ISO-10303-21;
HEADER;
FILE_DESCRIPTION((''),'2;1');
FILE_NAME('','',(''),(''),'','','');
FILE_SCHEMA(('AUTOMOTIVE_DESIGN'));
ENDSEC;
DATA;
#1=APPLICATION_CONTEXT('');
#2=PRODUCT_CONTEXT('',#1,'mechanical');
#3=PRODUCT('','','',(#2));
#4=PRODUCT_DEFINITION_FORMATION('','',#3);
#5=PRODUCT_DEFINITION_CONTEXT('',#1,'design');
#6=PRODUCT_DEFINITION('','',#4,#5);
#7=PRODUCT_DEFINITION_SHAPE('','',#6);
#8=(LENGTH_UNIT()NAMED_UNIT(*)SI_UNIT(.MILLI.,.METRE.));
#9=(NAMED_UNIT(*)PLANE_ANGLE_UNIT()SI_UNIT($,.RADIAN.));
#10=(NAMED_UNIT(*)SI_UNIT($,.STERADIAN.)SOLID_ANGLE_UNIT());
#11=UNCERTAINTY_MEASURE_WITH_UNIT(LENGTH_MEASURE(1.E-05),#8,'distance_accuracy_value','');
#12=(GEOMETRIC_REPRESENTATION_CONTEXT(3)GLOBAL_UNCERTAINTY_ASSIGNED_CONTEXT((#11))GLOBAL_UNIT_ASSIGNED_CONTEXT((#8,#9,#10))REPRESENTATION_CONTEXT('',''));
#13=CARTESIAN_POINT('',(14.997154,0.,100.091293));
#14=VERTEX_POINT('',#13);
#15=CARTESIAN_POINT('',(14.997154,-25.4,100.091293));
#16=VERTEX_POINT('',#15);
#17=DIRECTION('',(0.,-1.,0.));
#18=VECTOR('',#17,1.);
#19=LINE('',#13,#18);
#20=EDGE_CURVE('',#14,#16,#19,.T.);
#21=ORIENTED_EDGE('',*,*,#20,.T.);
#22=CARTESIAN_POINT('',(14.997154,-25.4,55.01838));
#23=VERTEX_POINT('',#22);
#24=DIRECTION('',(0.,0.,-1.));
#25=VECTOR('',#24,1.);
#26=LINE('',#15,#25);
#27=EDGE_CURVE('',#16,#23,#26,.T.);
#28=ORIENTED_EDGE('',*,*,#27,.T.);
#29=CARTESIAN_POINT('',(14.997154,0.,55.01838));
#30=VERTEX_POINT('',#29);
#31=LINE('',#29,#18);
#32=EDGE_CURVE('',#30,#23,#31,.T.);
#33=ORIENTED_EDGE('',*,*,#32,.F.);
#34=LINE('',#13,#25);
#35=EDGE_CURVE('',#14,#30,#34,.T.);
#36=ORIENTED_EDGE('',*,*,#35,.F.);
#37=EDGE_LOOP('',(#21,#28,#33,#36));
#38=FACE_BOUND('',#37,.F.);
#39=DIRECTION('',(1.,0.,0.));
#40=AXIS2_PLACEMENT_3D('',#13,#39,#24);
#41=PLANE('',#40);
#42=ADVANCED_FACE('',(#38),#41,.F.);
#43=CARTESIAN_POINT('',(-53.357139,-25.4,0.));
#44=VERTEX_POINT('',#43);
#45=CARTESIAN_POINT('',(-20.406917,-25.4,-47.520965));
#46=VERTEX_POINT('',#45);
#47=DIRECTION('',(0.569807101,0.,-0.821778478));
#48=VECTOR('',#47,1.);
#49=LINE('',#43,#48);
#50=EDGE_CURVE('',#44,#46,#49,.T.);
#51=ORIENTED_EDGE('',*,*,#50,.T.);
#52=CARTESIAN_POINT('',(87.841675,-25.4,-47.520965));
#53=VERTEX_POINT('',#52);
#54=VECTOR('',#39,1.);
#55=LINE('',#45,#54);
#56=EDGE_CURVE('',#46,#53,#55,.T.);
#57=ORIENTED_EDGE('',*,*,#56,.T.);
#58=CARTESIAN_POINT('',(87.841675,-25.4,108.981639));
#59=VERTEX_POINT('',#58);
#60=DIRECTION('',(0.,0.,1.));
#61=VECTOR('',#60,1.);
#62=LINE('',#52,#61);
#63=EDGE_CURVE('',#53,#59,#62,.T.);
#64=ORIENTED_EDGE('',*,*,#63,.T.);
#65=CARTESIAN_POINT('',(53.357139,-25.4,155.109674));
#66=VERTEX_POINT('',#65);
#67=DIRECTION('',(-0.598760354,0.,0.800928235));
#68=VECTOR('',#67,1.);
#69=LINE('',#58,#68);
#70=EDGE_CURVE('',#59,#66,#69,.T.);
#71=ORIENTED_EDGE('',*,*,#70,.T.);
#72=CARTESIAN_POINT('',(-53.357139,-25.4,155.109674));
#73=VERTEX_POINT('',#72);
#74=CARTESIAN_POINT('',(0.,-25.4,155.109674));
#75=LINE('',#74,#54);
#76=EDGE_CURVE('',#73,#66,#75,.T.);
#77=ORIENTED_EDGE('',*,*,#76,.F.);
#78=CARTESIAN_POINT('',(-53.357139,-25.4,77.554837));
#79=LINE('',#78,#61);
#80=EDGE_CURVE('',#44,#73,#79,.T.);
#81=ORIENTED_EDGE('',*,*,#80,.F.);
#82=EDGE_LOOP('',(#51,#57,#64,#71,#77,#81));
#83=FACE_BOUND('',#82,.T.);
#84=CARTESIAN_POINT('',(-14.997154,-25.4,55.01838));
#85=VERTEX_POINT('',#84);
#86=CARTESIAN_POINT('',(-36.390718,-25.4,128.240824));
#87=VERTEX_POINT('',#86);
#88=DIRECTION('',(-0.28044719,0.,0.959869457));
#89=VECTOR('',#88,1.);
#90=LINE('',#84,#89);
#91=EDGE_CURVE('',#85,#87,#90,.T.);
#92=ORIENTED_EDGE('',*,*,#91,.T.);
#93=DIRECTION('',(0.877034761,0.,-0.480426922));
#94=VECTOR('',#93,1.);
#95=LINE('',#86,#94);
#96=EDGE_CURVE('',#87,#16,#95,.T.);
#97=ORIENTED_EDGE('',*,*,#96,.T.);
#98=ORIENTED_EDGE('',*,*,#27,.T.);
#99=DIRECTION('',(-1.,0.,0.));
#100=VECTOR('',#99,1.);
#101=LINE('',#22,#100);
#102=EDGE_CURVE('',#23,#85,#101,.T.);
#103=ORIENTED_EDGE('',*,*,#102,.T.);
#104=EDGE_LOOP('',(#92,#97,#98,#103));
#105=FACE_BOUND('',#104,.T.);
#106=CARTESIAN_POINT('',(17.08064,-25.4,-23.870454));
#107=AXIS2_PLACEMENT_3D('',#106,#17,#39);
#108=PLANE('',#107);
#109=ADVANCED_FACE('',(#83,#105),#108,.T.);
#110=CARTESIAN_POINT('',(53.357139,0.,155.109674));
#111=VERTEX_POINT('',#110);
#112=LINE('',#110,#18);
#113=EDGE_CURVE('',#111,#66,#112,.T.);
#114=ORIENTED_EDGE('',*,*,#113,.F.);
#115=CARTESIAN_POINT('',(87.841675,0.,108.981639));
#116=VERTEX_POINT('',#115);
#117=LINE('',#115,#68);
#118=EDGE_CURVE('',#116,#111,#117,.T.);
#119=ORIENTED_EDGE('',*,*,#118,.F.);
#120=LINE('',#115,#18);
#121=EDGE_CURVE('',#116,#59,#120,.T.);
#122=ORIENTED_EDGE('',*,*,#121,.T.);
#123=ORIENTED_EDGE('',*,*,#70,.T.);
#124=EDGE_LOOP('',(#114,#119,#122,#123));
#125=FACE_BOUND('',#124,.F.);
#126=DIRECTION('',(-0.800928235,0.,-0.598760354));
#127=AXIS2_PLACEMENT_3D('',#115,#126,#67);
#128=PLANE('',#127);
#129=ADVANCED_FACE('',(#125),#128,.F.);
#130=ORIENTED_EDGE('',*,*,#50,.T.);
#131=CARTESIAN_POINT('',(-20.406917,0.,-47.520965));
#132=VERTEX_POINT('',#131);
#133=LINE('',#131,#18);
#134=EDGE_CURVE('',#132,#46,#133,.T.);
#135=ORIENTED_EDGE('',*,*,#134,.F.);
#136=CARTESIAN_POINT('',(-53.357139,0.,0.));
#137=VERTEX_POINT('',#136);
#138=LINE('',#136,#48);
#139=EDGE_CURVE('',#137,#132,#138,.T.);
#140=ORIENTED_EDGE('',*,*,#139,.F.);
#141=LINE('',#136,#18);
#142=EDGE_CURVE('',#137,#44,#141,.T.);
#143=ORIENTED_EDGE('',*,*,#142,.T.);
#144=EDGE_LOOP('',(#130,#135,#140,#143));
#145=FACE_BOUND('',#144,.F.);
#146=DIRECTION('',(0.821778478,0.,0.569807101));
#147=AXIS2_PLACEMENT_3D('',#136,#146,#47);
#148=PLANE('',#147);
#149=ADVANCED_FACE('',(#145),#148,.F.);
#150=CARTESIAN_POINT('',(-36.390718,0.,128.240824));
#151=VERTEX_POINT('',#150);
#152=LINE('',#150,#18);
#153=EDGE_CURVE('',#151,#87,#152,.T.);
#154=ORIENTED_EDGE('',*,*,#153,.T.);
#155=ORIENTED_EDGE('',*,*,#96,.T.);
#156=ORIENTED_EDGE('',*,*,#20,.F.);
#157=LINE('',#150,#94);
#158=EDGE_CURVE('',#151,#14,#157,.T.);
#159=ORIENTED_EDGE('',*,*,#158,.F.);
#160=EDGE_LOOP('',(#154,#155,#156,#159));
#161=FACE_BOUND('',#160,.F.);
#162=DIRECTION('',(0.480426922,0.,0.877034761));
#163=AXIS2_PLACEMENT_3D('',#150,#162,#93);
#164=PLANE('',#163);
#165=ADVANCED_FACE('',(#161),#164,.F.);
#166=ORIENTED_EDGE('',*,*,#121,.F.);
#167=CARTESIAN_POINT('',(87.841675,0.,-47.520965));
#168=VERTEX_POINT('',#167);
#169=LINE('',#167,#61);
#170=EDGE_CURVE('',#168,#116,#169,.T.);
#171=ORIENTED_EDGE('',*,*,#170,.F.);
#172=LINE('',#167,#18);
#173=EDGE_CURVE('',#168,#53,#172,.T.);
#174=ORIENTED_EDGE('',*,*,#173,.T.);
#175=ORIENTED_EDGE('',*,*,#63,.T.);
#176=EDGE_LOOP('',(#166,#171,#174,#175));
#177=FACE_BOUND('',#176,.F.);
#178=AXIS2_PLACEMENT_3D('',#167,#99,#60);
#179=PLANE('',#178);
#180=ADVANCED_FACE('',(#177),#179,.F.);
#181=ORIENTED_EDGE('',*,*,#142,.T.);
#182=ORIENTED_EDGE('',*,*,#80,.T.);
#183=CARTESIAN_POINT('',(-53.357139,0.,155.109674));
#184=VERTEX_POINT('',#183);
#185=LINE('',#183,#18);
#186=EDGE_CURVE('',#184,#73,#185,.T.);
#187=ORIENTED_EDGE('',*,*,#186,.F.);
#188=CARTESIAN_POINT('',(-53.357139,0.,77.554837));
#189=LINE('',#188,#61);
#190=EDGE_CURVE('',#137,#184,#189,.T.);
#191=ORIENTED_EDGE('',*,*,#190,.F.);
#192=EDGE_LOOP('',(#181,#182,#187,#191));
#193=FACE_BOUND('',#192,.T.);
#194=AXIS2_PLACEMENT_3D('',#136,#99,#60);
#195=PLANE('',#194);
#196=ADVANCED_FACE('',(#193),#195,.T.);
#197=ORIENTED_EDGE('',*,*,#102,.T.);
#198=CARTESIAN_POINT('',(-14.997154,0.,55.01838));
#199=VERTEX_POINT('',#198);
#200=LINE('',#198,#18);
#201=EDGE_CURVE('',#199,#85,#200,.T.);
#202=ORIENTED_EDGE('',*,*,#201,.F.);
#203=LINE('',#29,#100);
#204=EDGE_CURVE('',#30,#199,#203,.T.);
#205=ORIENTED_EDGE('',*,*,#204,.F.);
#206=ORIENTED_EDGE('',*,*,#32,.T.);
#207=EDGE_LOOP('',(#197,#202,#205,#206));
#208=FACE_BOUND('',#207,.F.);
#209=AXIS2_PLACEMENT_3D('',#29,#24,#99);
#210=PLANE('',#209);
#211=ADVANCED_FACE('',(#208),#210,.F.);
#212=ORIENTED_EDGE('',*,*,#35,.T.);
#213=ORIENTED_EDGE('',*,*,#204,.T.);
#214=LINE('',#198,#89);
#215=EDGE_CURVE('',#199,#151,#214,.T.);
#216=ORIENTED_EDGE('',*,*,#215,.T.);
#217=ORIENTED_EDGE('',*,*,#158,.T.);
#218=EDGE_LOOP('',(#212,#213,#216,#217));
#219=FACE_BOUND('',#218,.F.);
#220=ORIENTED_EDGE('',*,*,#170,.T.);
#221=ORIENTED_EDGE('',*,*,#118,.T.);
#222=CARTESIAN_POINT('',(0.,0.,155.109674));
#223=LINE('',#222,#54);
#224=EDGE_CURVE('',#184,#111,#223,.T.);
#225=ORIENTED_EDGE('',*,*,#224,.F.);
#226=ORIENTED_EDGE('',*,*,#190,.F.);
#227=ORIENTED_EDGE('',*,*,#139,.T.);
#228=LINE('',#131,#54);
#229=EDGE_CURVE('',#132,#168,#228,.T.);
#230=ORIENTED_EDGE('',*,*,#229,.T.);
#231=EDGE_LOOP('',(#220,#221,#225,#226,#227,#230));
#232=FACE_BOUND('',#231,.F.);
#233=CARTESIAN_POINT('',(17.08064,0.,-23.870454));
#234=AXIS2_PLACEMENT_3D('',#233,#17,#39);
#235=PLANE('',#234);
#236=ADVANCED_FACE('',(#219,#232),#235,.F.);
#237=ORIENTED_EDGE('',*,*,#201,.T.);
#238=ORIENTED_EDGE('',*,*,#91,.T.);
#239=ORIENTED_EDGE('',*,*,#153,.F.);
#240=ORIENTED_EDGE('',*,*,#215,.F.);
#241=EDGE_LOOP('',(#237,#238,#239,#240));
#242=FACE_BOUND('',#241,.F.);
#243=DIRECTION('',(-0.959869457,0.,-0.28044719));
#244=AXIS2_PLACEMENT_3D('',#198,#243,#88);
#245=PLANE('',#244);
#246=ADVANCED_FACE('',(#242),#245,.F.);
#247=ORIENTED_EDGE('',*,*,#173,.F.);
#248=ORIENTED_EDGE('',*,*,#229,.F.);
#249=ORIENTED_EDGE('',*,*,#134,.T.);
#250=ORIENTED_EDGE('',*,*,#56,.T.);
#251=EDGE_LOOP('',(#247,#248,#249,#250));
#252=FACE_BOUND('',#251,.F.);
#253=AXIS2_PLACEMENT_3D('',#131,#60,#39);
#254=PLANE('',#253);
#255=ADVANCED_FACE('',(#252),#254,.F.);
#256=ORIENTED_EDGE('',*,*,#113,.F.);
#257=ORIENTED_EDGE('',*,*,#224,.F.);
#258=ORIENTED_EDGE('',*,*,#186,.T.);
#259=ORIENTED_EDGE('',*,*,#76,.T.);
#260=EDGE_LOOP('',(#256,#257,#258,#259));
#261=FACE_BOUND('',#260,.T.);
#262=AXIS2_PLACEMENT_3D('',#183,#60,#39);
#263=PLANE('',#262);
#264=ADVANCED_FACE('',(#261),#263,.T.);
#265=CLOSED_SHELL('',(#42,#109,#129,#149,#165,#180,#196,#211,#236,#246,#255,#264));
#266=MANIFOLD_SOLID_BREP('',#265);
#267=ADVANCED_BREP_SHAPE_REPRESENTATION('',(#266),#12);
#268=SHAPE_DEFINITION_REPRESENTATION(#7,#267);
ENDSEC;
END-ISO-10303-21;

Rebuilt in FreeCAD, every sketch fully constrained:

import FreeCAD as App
import Part
import Sketcher
from FreeCAD import Vector
Q = App.Units.Quantity


def add_polygon(sketch, points):
    """Adds a closed chain of lines whose ends are joined by coincident constraints."""
    first, n = sketch.GeometryCount, len(points)
    for a, b in zip(points, points[1:] + points[:1]):
        sketch.addGeometry(Part.LineSegment(App.Vector(*a, 0), App.Vector(*b, 0)), False)
    for i in range(n):
        sketch.addConstraint(Sketcher.Constraint("Coincident", first + i, 2, first + (i + 1) % n, 1))

doc = App.newDocument("Part")
body = doc.addObject("PartDesign::Body", "Body")

# Sketch on XZ plane
sketch1 = body.newObject("Sketcher::SketchObject", "Sketch")
sketch1.AttachmentSupport = (doc.getObject("XZ_Plane"), [""])
sketch1.MapMode = "FlatFace"
add_polygon(sketch1, [(-20, -48), (88, -48), (88, 109), (53, 155), (-53, 155), (-53, 0)])  # lines 0-5
add_polygon(sketch1, [(15, 100), (15, 55), (-15, 55), (-36, 128)])  # lines 6-9
sketch1.addConstraint([
    Sketcher.Constraint("Horizontal", 0),
    Sketcher.Constraint("Vertical", 1),
    Sketcher.Constraint("Horizontal", 3),
    Sketcher.Constraint("Vertical", 4),
    Sketcher.Constraint("Vertical", 6),
    Sketcher.Constraint("Horizontal", 7),
    Sketcher.Constraint("PointOnObject", 4, 2, -1),
    Sketcher.Constraint("DistanceX", 7, 2, 7, 1, 29.994308),
    Sketcher.Constraint("Distance", 2, 57.593219),
    Sketcher.Constraint("DistanceX", 0, 1, 0, 2, 108.248592),
    Sketcher.Constraint("DistanceX", 3, 2, 3, 1, 106.714278),
    Sketcher.Constraint("DistanceY", 1, 1, 1, 2, 156.502604),
    Sketcher.Constraint("DistanceY", 4, 2, 4, 1, 155.109674),
    Sketcher.Constraint("DistanceY", 6, 2, 6, 1, 45.072913),
    Sketcher.Constraint("DistanceY", -1, 1, 1, 2, 108.981639),
    Sketcher.Constraint("DistanceX", -1, 1, 2, 2, 53.357139),
    Sketcher.Constraint("DistanceY", -1, 1, 6, 2, 55.01838),
    Sketcher.Constraint("DistanceX", 6, 2, 1, 2, 72.844521),
    Sketcher.Constraint("DistanceX", 3, 2, 8, 2, 16.966421),
    Sketcher.Constraint("DistanceY", 8, 2, 3, 2, 26.86885),
])
pad1 = body.newObject("PartDesign::Pad", "Pad")
pad1.Profile = sketch1
pad1.Length = Q("1 in")

doc.recompute()
